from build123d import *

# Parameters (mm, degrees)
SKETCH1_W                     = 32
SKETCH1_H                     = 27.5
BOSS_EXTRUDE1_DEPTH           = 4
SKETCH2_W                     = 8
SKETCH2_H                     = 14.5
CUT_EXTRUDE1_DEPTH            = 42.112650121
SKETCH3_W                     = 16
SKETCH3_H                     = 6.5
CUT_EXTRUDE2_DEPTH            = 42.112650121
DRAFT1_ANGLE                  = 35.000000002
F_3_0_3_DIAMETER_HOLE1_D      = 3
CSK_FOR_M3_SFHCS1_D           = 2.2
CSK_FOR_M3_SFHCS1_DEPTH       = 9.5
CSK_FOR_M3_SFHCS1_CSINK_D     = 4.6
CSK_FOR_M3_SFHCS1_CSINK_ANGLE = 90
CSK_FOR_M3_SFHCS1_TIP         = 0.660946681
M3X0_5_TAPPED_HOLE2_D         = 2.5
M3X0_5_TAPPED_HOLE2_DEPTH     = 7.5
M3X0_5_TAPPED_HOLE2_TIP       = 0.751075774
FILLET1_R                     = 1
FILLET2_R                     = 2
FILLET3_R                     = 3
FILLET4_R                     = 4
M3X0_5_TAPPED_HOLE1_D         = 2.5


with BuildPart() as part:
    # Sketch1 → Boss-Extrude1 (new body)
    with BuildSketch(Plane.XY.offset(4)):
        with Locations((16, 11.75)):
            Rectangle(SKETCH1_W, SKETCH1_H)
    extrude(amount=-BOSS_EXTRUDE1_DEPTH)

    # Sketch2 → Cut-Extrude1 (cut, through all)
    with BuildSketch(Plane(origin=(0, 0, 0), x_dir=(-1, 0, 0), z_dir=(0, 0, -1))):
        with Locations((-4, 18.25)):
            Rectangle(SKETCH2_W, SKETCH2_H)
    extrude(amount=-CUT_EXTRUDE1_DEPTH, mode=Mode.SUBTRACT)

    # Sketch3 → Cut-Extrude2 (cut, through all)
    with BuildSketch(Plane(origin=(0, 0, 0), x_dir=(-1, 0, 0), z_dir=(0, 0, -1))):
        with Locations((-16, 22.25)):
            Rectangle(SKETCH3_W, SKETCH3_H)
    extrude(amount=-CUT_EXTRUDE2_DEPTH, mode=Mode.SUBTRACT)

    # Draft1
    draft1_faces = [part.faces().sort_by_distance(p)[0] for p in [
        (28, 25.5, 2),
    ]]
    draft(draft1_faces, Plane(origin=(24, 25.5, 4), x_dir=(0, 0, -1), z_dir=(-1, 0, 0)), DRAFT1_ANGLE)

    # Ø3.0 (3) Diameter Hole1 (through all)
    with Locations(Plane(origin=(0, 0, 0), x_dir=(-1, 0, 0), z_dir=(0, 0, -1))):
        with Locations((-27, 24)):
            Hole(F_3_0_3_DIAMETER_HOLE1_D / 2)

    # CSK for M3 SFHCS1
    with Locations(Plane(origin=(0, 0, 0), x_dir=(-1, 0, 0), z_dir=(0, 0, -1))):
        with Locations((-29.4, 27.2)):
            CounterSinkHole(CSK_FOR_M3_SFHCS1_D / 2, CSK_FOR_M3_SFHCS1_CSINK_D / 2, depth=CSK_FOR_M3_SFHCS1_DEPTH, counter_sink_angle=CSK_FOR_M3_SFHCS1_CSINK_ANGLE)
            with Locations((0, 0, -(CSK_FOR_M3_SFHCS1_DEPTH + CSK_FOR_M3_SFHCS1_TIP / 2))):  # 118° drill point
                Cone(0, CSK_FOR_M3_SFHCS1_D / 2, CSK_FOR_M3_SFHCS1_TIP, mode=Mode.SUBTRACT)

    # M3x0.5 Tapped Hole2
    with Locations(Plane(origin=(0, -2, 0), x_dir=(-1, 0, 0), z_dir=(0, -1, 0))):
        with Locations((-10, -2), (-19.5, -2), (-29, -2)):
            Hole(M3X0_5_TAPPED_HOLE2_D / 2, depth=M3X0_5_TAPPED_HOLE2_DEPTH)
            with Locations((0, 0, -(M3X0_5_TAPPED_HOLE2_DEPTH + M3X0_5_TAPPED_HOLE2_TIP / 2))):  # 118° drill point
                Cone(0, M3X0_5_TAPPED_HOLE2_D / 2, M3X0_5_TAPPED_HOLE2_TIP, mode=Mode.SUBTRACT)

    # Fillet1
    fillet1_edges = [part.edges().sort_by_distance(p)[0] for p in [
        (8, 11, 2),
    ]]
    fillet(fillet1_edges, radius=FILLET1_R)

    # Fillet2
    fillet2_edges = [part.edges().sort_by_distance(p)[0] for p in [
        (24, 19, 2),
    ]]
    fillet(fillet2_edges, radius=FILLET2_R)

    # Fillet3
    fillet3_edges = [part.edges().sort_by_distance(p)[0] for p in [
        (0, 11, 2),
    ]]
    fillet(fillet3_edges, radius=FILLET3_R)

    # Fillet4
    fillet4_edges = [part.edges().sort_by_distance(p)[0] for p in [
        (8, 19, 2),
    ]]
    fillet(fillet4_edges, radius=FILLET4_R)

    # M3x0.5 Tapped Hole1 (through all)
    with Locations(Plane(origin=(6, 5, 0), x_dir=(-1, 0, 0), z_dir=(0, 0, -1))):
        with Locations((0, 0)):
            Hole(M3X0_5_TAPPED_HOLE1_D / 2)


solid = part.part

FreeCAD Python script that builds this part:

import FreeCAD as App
import Part
import Sketcher

V = App.Vector


def edges_at(feature, points):
    """Names of the edges that pass closest to the given points."""
    edges = feature.Shape.Edges
    near = lambda p: min(range(len(edges)), key=lambda i: edges[i].distToShape(Part.Vertex(*p))[0])
    return sorted({f"Edge{near(p) + 1}" for p in points})


def faces_at(feature, points):
    """Names of the faces that lie closest to the given points."""
    faces = feature.Shape.Faces
    near = lambda p: min(range(len(faces)), key=lambda i: faces[i].distToShape(Part.Vertex(*p))[0])
    return sorted({f"Face{near(p) + 1}" for p in points})

doc = App.newDocument("Part")
body = doc.addObject("PartDesign::Body", "Body")

# Sketch on XY plane
sketch1 = body.newObject("Sketcher::SketchObject", "Sketch")
sketch1.AttachmentSupport = (doc.getObject("XY_Plane"), [""])
sketch1.MapMode = "FlatFace"
sketch1.AttachmentOffset = App.Placement(V(0, 0, 4), App.Rotation())
sketch1.addGeometry([
    Part.LineSegment(V(0, 25.5, 0), V(0, -2, 0)),
    Part.LineSegment(V(0, -2, 0), V(32, -2, 0)),
    Part.LineSegment(V(32, -2, 0), V(32, 25.5, 0)),
    Part.LineSegment(V(32, 25.5, 0), V(0, 25.5, 0)),
], False)
sketch1.addConstraint([
    Sketcher.Constraint("Coincident", 0, 2, 1, 1),
    Sketcher.Constraint("Coincident", 1, 2, 2, 1),
    Sketcher.Constraint("Coincident", 2, 2, 3, 1),
    Sketcher.Constraint("Coincident", 3, 2, 0, 1),
    Sketcher.Constraint("Vertical", 0),
    Sketcher.Constraint("Horizontal", 1),
    Sketcher.Constraint("Vertical", 2),
    Sketcher.Constraint("Horizontal", 3),
    Sketcher.Constraint("PointOnObject", 0, 2, -2),
    Sketcher.Constraint("DistanceX", 1, 1, 1, 2, 32.0),
    Sketcher.Constraint("DistanceY", 0, 2, 0, 1, 27.5),
    Sketcher.Constraint("DistanceY", 0, 2, -1, 1, 2.0),
])
pad1 = body.newObject("PartDesign::Pad", "Pad")
pad1.Profile = sketch1
pad1.Length = 4
pad1.Reversed = True

# Sketch on XY plane
sketch2 = body.newObject("Sketcher::SketchObject", "Sketch001")
sketch2.AttachmentSupport = (doc.getObject("XY_Plane"), [""])
sketch2.MapMode = "FlatFace"
sketch2.addGeometry([
    Part.LineSegment(V(8, 25.5, 0), V(8, 11, 0)),
    Part.LineSegment(V(8, 11, 0), V(0, 11, 0)),
    Part.LineSegment(V(0, 11, 0), V(0, 25.5, 0)),
    Part.LineSegment(V(0, 25.5, 0), V(8, 25.5, 0)),
], False)
sketch2.addConstraint([
    Sketcher.Constraint("Coincident", 0, 2, 1, 1),
    Sketcher.Constraint("Coincident", 1, 2, 2, 1),
    Sketcher.Constraint("Coincident", 2, 2, 3, 1),
    Sketcher.Constraint("Coincident", 3, 2, 0, 1),
    Sketcher.Constraint("Vertical", 0),
    Sketcher.Constraint("Horizontal", 1),
    Sketcher.Constraint("Vertical", 2),
    Sketcher.Constraint("Horizontal", 3),
    Sketcher.Constraint("PointOnObject", 1, 2, -2),
    Sketcher.Constraint("DistanceX", 1, 2, 1, 1, 8.0),
    Sketcher.Constraint("DistanceY", 0, 2, 0, 1, 14.5),
    Sketcher.Constraint("DistanceY", -1, 1, 0, 2, 11.0),
])
pocket1 = body.newObject("PartDesign::Pocket", "Pocket")
pocket1.Profile = sketch2
pocket1.Type = "ThroughAll"
pocket1.Reversed = True

# Sketch on XY plane
sketch3 = body.newObject("Sketcher::SketchObject", "Sketch002")
sketch3.AttachmentSupport = (doc.getObject("XY_Plane"), [""])
sketch3.MapMode = "FlatFace"
sketch3.addGeometry([
    Part.LineSegment(V(24, 25.5, 0), V(24, 19, 0)),
    Part.LineSegment(V(24, 19, 0), V(8, 19, 0)),
    Part.LineSegment(V(8, 19, 0), V(8, 25.5, 0)),
    Part.LineSegment(V(8, 25.5, 0), V(24, 25.5, 0)),
], False)
sketch3.addConstraint([
    Sketcher.Constraint("Coincident", 0, 2, 1, 1),
    Sketcher.Constraint("Coincident", 1, 2, 2, 1),
    Sketcher.Constraint("Coincident", 2, 2, 3, 1),
    Sketcher.Constraint("Coincident", 3, 2, 0, 1),
    Sketcher.Constraint("Vertical", 0),
    Sketcher.Constraint("Horizontal", 1),
    Sketcher.Constraint("Vertical", 2),
    Sketcher.Constraint("Horizontal", 3),
    Sketcher.Constraint("DistanceX", 1, 2, 1, 1, 16.0),
    Sketcher.Constraint("DistanceY", 0, 2, 0, 1, 6.5),
    Sketcher.Constraint("DistanceX", -1, 1, 0, 2, 24.0),
    Sketcher.Constraint("DistanceY", -1, 1, 0, 2, 19.0),
])
pocket2 = body.newObject("PartDesign::Pocket", "Pocket001")
pocket2.Profile = sketch3
pocket2.Type = "ThroughAll"
pocket2.Reversed = True
doc.recompute()

datumplane = body.newObject("PartDesign::Plane", "DatumPlane")
datumplane.AttachmentSupport = (doc.getObject("YZ_Plane"), [""])
datumplane.MapMode = "FlatFace"
datumplane.AttachmentOffset = App.Placement(V(0, 0, 24), App.Rotation())
draft = body.newObject("PartDesign::Draft", "Draft")
draft.Base = (pocket2, faces_at(pocket2, [(28, 25.5, 2)]))
draft.NeutralPlane = (datumplane, [""])
draft.Angle = 35
draft.Reversed = True

# Sketch on XY plane
sketch4 = body.newObject("Sketcher::SketchObject", "Sketch003")
sketch4.AttachmentSupport = (doc.getObject("XY_Plane"), [""])
sketch4.MapMode = "FlatFace"
sketch4.addGeometry(Part.Circle(V(27, 24, 0), V(0, 0, 1), 1.5), False)
sketch4.addConstraint([
    Sketcher.Constraint("Diameter", 0, 3.0),
    Sketcher.Constraint("DistanceX", -1, 1, 0, 3, 27.0),
    Sketcher.Constraint("DistanceY", -1, 1, 0, 3, 24.0),
])
doc.recompute()
hole = body.newObject("PartDesign::Hole", "Hole")
hole.Profile = sketch4
hole.ThreadType = "None"
hole.Diameter = 3
hole.DepthType = "ThroughAll"
hole.Reversed = True

# Sketch on XY plane
sketch5 = body.newObject("Sketcher::SketchObject", "Sketch004")
sketch5.AttachmentSupport = (doc.getObject("XY_Plane"), [""])
sketch5.MapMode = "FlatFace"
sketch5.addGeometry(Part.Circle(V(29.4, 27.2, 0), V(0, 0, 1), 1.1), False)
sketch5.addConstraint([
    Sketcher.Constraint("Diameter", 0, 2.2),
    Sketcher.Constraint("DistanceX", -1, 1, 0, 3, 29.4),
    Sketcher.Constraint("DistanceY", -1, 1, 0, 3, 27.2),
])
doc.recompute()
hole2 = body.newObject("PartDesign::Hole", "Hole001")
hole2.Profile = sketch5
hole2.ThreadType = "None"
hole2.Diameter = 2.2
hole2.DepthType = "Dimension"
hole2.Depth = 9.5
hole2.DrillPoint = "Angled"
hole2.DrillPointAngle = 118
hole2.HoleCutType = "Countersink"
hole2.HoleCutDiameter = 4.6
hole2.HoleCutCountersinkAngle = 90
hole2.Reversed = True

# Sketch on XZ plane
sketch6 = body.newObject("Sketcher::SketchObject", "Sketch005")
sketch6.AttachmentSupport = (doc.getObject("XZ_Plane"), [""])
sketch6.MapMode = "FlatFace"
sketch6.AttachmentOffset = App.Placement(V(0, 0, 2), App.Rotation())
sketch6.addGeometry([
    Part.Circle(V(10, 2, 0), V(0, 0, 1), 1.25),
    Part.Circle(V(19.5, 2, 0), V(0, 0, 1), 1.25),
    Part.Circle(V(29, 2, 0), V(0, 0, 1), 1.25),
], False)
sketch6.addConstraint([
    Sketcher.Constraint("Equal", 0, 1),
    Sketcher.Constraint("Equal", 1, 2),
    Sketcher.Constraint("Horizontal", 0, 3, 1, 3),
    Sketcher.Constraint("Horizontal", 1, 3, 2, 3),
    Sketcher.Constraint("Diameter", 0, 2.5),
    Sketcher.Constraint("DistanceX", -1, 1, 0, 3, 10.0),
    Sketcher.Constraint("DistanceY", -1, 1, 0, 3, 2.0),
    Sketcher.Constraint("DistanceX", -1, 1, 2, 3, 29.0),
    Sketcher.Constraint("DistanceX", -1, 1, 1, 3, 19.5),
])
doc.recompute()
hole3 = body.newObject("PartDesign::Hole", "Hole002")
hole3.Profile = sketch6
hole3.ThreadType = "None"
hole3.Diameter = 2.5
hole3.DepthType = "Dimension"
hole3.Depth = 7.5
hole3.DrillPoint = "Angled"
hole3.DrillPointAngle = 118
doc.recompute()

fillet = body.newObject("PartDesign::Fillet", "Fillet")
fillet.Base = (hole3, edges_at(hole3, [(8, 11, 2)]))
fillet.Radius = 1
doc.recompute()

fillet2 = body.newObject("PartDesign::Fillet", "Fillet001")
fillet2.Base = (fillet, edges_at(fillet, [(24, 19, 2)]))
fillet2.Radius = 2
doc.recompute()

fillet3 = body.newObject("PartDesign::Fillet", "Fillet002")
fillet3.Base = (fillet2, edges_at(fillet2, [(0, 11, 2)]))
fillet3.Radius = 3
doc.recompute()

fillet4 = body.newObject("PartDesign::Fillet", "Fillet003")
fillet4.Base = (fillet3, edges_at(fillet3, [(8, 19, 2)]))
fillet4.Radius = 4

# Sketch on XY plane
sketch7 = body.newObject("Sketcher::SketchObject", "Sketch006")
sketch7.AttachmentSupport = (doc.getObject("XY_Plane"), [""])
sketch7.MapMode = "FlatFace"
sketch7.addGeometry(Part.Circle(V(6, 5, 0), V(0, 0, 1), 1.25), False)
sketch7.addConstraint([
    Sketcher.Constraint("Diameter", 0, 2.5),
    Sketcher.Constraint("DistanceX", -1, 1, 0, 3, 6.0),
    Sketcher.Constraint("DistanceY", -1, 1, 0, 3, 5.0),
])
doc.recompute()
hole4 = body.newObject("PartDesign::Hole", "Hole003")
hole4.Profile = sketch7
hole4.ThreadType = "None"
hole4.Diameter = 2.5
hole4.DepthType = "ThroughAll"
hole4.Reversed = True

doc.recompute()
